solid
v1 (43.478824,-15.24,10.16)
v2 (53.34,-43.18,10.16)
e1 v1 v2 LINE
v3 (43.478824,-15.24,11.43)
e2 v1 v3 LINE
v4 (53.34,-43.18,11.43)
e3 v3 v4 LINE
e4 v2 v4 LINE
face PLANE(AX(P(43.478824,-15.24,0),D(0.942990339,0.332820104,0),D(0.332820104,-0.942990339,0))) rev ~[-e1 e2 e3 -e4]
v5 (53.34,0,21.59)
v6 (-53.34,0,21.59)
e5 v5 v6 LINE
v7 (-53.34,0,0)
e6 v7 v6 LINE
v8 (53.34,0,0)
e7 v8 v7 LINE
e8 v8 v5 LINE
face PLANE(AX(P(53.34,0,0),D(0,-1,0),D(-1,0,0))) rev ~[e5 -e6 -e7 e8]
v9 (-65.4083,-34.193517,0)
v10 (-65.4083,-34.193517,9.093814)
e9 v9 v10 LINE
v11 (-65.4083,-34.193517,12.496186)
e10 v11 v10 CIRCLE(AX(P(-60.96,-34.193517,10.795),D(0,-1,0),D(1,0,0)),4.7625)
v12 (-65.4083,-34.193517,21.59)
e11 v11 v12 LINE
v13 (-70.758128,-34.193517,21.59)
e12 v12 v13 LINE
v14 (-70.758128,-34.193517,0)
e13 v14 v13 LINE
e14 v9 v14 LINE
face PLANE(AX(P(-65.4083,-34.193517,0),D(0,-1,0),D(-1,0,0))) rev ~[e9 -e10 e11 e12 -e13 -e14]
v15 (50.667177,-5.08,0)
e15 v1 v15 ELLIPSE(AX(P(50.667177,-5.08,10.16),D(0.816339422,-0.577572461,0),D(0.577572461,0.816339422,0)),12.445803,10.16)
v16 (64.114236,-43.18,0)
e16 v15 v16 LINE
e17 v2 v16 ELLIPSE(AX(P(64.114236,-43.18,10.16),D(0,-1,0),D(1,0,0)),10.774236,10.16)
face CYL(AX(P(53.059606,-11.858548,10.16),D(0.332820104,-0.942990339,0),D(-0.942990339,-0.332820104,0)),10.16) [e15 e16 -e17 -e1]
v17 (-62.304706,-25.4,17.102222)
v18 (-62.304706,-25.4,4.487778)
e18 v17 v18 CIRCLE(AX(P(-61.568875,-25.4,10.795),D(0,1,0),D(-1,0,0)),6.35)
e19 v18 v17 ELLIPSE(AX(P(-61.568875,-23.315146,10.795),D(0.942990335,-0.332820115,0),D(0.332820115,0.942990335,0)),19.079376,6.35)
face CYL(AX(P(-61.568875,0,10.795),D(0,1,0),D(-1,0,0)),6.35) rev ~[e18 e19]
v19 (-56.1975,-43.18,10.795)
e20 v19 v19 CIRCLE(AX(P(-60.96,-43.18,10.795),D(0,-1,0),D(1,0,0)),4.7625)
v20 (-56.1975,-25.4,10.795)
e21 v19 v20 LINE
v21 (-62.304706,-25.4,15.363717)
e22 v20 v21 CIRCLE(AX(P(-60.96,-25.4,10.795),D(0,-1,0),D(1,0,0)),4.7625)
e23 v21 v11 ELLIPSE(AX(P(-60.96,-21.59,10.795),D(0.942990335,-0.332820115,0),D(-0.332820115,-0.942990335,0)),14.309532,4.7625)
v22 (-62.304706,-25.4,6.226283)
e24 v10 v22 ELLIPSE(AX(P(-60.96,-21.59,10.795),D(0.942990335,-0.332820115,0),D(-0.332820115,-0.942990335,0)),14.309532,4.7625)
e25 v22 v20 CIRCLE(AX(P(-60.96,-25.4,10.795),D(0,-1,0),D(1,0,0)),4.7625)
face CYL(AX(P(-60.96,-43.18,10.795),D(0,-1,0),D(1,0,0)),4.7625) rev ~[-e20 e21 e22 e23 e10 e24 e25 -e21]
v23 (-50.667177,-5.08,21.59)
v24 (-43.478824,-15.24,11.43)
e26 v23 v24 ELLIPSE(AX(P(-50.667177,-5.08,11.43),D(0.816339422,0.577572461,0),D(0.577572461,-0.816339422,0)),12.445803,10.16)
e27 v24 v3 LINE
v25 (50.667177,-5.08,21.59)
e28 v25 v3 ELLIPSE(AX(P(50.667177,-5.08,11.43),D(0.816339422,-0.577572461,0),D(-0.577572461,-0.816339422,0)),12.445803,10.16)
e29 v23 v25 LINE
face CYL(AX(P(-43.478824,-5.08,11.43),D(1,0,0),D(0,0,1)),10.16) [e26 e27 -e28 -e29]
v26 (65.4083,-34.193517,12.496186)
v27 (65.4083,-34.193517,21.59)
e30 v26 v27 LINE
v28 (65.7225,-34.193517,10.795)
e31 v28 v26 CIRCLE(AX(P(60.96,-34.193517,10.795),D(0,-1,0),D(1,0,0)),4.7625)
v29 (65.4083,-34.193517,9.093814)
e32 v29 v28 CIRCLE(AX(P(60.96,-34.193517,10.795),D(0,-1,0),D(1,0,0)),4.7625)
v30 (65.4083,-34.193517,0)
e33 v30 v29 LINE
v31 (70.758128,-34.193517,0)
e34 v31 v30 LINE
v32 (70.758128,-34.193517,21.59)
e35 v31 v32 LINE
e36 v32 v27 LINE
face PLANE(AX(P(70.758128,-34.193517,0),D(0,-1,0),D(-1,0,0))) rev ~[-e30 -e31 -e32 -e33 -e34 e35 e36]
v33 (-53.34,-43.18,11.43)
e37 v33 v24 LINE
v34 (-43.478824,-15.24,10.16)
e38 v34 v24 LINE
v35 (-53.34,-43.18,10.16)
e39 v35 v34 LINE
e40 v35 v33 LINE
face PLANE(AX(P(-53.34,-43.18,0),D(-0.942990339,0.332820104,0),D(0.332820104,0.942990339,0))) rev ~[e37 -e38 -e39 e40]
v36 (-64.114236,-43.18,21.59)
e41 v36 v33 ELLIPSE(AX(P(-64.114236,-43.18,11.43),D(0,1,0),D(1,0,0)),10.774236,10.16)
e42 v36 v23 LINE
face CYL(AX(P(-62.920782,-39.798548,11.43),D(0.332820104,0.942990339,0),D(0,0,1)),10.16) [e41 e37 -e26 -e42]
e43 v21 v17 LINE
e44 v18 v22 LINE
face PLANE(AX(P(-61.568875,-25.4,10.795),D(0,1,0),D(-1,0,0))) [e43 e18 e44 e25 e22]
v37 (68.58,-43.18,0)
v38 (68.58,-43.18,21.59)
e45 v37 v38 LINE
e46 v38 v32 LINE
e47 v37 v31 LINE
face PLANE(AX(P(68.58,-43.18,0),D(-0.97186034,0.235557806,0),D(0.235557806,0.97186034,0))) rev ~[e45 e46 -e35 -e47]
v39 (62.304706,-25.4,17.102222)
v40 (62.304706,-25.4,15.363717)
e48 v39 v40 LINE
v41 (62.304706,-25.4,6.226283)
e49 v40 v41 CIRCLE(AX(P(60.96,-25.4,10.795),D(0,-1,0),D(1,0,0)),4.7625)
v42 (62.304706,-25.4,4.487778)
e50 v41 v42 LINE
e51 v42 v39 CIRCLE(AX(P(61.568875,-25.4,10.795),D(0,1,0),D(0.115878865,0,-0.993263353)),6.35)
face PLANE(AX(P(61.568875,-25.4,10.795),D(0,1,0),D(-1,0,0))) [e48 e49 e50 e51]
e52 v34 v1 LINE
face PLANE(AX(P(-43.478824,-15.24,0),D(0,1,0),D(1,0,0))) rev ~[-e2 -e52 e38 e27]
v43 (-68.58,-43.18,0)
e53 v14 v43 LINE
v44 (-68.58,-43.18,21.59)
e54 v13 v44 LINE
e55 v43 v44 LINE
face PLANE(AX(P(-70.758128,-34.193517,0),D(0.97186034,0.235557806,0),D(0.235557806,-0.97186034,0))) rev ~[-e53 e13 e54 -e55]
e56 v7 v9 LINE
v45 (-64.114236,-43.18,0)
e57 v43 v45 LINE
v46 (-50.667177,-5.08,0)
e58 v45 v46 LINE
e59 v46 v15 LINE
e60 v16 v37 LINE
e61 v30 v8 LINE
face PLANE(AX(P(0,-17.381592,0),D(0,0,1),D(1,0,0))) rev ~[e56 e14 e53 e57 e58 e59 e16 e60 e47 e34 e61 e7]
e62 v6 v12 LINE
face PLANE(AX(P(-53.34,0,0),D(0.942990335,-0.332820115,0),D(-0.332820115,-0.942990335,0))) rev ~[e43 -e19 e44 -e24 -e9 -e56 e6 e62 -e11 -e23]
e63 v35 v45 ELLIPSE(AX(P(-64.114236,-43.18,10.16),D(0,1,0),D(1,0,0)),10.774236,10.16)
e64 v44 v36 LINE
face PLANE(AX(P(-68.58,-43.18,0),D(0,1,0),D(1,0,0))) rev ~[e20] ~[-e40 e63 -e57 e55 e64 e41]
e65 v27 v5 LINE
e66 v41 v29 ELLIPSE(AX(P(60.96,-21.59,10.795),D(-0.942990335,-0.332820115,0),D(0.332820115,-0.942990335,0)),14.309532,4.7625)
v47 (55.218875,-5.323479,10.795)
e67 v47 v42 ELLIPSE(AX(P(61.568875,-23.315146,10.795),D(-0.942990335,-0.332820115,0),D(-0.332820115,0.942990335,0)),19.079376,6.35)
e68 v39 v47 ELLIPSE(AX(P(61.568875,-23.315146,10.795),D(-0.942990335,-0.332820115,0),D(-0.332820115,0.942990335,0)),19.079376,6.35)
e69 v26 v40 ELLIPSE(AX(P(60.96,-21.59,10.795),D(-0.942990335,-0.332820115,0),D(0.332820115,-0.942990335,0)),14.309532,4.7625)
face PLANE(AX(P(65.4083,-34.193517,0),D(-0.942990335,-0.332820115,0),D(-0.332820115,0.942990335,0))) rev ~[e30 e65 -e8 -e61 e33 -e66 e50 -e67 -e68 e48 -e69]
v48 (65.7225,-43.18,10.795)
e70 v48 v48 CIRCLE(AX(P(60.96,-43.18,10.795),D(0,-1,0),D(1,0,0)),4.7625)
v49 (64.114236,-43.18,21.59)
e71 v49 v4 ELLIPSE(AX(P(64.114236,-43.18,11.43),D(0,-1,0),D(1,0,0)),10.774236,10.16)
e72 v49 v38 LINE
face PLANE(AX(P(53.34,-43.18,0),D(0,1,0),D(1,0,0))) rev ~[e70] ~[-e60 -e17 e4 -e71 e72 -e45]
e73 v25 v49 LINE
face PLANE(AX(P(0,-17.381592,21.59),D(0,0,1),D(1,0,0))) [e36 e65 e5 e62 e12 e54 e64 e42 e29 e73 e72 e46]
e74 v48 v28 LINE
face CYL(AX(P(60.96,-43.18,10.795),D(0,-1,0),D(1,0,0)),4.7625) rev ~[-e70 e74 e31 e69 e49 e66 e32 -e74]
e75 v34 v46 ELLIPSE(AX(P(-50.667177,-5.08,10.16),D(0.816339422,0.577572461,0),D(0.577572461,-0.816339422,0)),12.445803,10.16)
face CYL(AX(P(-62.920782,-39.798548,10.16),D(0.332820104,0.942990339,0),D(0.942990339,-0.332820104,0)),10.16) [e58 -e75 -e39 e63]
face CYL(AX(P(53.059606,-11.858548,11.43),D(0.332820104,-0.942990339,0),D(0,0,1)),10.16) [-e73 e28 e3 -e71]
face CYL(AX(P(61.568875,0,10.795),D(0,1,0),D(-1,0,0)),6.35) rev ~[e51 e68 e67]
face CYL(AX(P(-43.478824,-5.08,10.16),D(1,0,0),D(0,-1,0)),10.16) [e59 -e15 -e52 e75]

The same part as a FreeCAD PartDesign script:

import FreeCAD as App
import Part
import Sketcher
Q = App.Units.Quantity


def edges_at(feature, points):
    """Names of the edges that pass closest to the given points."""
    edges = feature.Shape.Edges
    near = lambda p: min(range(len(edges)), key=lambda i: edges[i].distToShape(Part.Vertex(*p))[0])
    return sorted({f"Edge{near(p) + 1}" for p in points})


def add_polygon(sketch, points):
    """Adds a closed chain of lines whose ends are joined by coincident constraints."""
    first, n = sketch.GeometryCount, len(points)
    for a, b in zip(points, points[1:] + points[:1]):
        sketch.addGeometry(Part.LineSegment(App.Vector(*a, 0), App.Vector(*b, 0)), False)
    for i in range(n):
        sketch.addConstraint(Sketcher.Constraint("Coincident", first + i, 2, first + (i + 1) % n, 1))

doc = App.newDocument("Part")
body = doc.addObject("PartDesign::Body", "Body")

# Sketch on XY plane
sketch1 = doc.addObject("Sketcher::SketchObject", "Sketch")
body.addObject(sketch1)
sketch1.AttachmentSupport = (doc.XY_Plane, [""])
sketch1.MapMode = "FlatFace"
add_polygon(sketch1, [(53, 0), (-53, 0), (-65, -34), (-71, -34), (-69, -43), (-53, -43), (-43, -15), (43, -15), (53, -43), (69, -43), (71, -34), (65, -34)])  # lines 0-11
sketch1.addConstraint([
    Sketcher.Constraint("Horizontal", 0),
    Sketcher.Constraint("Horizontal", 2),
    Sketcher.Constraint("Horizontal", 4),
    Sketcher.Constraint("Horizontal", 6),
    Sketcher.Constraint("Horizontal", 8),
    Sketcher.Constraint("Horizontal", 10),
    Sketcher.Constraint("Symmetric", 0, 2, 11, 2, -1, 1),
    Sketcher.Constraint("Symmetric", 4, 2, 7, 2, -2),
    Sketcher.Constraint("Symmetric", 2, 2, 9, 2, -2),
    Sketcher.Constraint("Parallel", 1, 5),
    Sketcher.Constraint("Parallel", 7, 11),
    Sketcher.Constraint("Vertical", 0, 2, 4, 2),
    Sketcher.Constraint("Equal", 4, 8),
    Sketcher.Constraint("Equal", 2, 10),
    Sketcher.Constraint("DistanceX", 0, 2, 0, 1, Q("4.2 in")),
    Sketcher.Constraint("DistanceX", 4, 1, 4, 2, Q("0.6 in")),
    Sketcher.Constraint("DistanceY", 3, 2, -1, 1, Q("1.7 in")),
    Sketcher.Constraint("DistanceY", 5, 2, -1, 1, Q("0.6 in")),
    Sketcher.Constraint("DistanceX", 2, 2, 2, 1, Q("5.349828 mm")),
    Sketcher.Constraint("DistanceX", 6, 1, 6, 2, Q("86.957648 mm")),
    Sketcher.Constraint("DistanceX", 1, 2, -1, 1, Q("65.4083 mm")),
])
pad1 = doc.addObject("PartDesign::Pad", "Pad")
body.addObject(pad1)
pad1.Profile = sketch1
pad1.Length = Q("0.85 in")

# Sketch on XZ plane
sketch2 = doc.addObject("Sketcher::SketchObject", "Sketch001")
body.addObject(sketch2)
sketch2.AttachmentSupport = (doc.XZ_Plane, [""])
sketch2.MapMode = "FlatFace"
sketch2.AttachmentOffset = App.Placement(App.Vector(0, 0, 1.7 * 25.4), App.Rotation())
sketch2.addGeometry([
    Part.Circle(App.Vector(-61, 10.8, 0), App.Vector(0, 0, 1), 4.8),
    Part.Circle(App.Vector(61, 10.8, 0), App.Vector(0, 0, 1), 4.8),
], False)
sketch2.addConstraint([
    Sketcher.Constraint("Equal", 0, 1),
    Sketcher.Constraint("Symmetric", 0, 3, 1, 3, -2),
    Sketcher.Constraint("Diameter", 0, Q("0.375 in")),
    Sketcher.Constraint("DistanceX", 0, 3, -1, 1, Q("2.4 in")),
    Sketcher.Constraint("DistanceY", -1, 1, 0, 3, Q("0.425 in")),
])
pocket1 = doc.addObject("PartDesign::Pocket", "Pocket")
body.addObject(pocket1)
pocket1.Profile = sketch2
pocket1.Length = Q("1 in")

# Sketch on XZ plane
sketch3 = doc.addObject("Sketcher::SketchObject", "Sketch002")
body.addObject(sketch3)
sketch3.AttachmentSupport = (doc.XZ_Plane, [""])
sketch3.MapMode = "FlatFace"
sketch3.addGeometry([
    Part.Circle(App.Vector(62, 11, 0), App.Vector(0, 0, 1), 6),
    Part.Circle(App.Vector(-62, 11, 0), App.Vector(0, 0, 1), 6),
], False)
sketch3.addConstraint([
    Sketcher.Constraint("Equal", 0, 1),
    Sketcher.Constraint("Symmetric", 0, 3, 1, 3, -2),
    Sketcher.Constraint("Diameter", 0, Q("0.5 in")),
    Sketcher.Constraint("DistanceY", -1, 1, 0, 3, Q("0.425 in")),
    Sketcher.Constraint("DistanceX", 1, 3, 0, 3, Q("123.13775 mm")),
])
pocket2 = doc.addObject("PartDesign::Pocket", "Pocket001")
body.addObject(pocket2)
pocket2.Profile = sketch3
pocket2.Length = Q("1 in")
pocket2.Reversed = True
doc.recompute()

fillet = doc.addObject("PartDesign::Fillet", "Fillet")
body.addObject(fillet)
fillet.Base = (pocket2, edges_at(pocket2, [
    (0, -15.24, 0),
    (48.409, -29.21, 0),
    (-48.409, -29.21, 0),
    (48.409, -29.21, 21.59),
    (0, -15.24, 21.59),
    (-48.409, -29.21, 21.59),
]))
fillet.Radius = Q("0.4 in")

doc.recompute()
